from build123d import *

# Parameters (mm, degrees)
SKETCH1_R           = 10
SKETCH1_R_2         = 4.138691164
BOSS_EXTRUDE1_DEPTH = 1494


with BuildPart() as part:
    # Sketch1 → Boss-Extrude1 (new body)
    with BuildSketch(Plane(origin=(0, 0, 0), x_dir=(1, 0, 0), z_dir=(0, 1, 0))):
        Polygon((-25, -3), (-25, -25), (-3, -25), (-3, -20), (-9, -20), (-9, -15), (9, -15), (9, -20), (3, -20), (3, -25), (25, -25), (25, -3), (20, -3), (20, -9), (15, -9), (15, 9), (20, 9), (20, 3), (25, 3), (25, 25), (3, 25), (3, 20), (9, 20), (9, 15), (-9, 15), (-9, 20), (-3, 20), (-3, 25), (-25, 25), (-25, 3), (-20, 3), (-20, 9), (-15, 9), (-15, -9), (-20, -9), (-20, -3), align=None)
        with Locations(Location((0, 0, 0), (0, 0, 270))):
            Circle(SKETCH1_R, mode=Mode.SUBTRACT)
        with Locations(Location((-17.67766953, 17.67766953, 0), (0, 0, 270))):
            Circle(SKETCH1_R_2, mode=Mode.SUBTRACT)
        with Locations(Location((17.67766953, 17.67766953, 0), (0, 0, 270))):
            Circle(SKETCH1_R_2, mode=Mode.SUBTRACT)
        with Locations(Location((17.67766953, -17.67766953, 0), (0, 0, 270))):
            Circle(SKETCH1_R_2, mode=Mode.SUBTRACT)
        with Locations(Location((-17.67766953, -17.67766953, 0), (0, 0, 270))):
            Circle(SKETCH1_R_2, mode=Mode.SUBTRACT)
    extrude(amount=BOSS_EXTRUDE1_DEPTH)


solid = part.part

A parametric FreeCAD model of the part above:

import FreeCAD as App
import Part
import Sketcher

V = App.Vector
Q = App.Units.Quantity


def add_polygon(sketch, points):
    """Adds a closed chain of lines whose ends are joined by coincident constraints."""
    first, n = sketch.GeometryCount, len(points)
    for a, b in zip(points, points[1:] + points[:1]):
        sketch.addGeometry(Part.LineSegment(App.Vector(*a, 0), App.Vector(*b, 0)), False)
    for i in range(n):
        sketch.addConstraint(Sketcher.Constraint("Coincident", first + i, 2, first + (i + 1) % n, 1))

doc = App.newDocument("Part")
body = doc.addObject("PartDesign::Body", "Body")

sketch1 = body.newObject("Sketcher::SketchObject", "Sketch")
sketch1.AttachmentSupport = (doc.getObject("XZ_Plane"), [""])
sketch1.MapMode = "FlatFace"
add_polygon(sketch1, [(-25, 3), (-25, 25), (-3, 25), (-3, 20), (-9, 20), (-9, 15), (9, 15), (9, 20), (3, 20), (3, 25), (25, 25), (25, 3), (20, 3), (20, 9), (15, 9), (15, -9), (20, -9), (20, -3), (25, -3), (25, -25), (3, -25), (3, -20), (9, -20), (9, -15), (-9, -15), (-9, -20), (-3, -20), (-3, -25), (-25, -25), (-25, -3), (-20, -3), (-20, -9), (-15, -9), (-15, 9), (-20, 9), (-20, 3)])
sketch1.addGeometry(Part.Circle(V(-17.7, 17.7, 0), V(0, 0, 1), 4.1), False)
sketch1.addGeometry(Part.Circle(V(17.7, 17.7, 0), V(0, 0, 1), 4.1), False)
sketch1.addGeometry(Part.Circle(V(-17.7, -17.7, 0), V(0, 0, 1), 4.1), False)
sketch1.addGeometry(Part.Circle(V(0, 0, 0), V(0, 0, 1), 10), False)
sketch1.addGeometry(Part.Circle(V(17.7, -17.7, 0), V(0, 0, 1), 4.1), False)
sketch1.addConstraint([
    Sketcher.Constraint("Vertical", 0),
    Sketcher.Constraint("Horizontal", 1),
    Sketcher.Constraint("Vertical", 2),
    Sketcher.Constraint("Horizontal", 3),
    Sketcher.Constraint("Vertical", 4),
    Sketcher.Constraint("Horizontal", 5),
    Sketcher.Constraint("Vertical", 6),
    Sketcher.Constraint("Horizontal", 7),
    Sketcher.Constraint("Vertical", 8),
    Sketcher.Constraint("Horizontal", 9),
    Sketcher.Constraint("Vertical", 10),
    Sketcher.Constraint("Horizontal", 11),
    Sketcher.Constraint("Vertical", 12),
    Sketcher.Constraint("Horizontal", 13),
    Sketcher.Constraint("Vertical", 14),
    Sketcher.Constraint("Horizontal", 15),
    Sketcher.Constraint("Vertical", 16),
    Sketcher.Constraint("Horizontal", 17),
    Sketcher.Constraint("Vertical", 18),
    Sketcher.Constraint("Horizontal", 19),
    Sketcher.Constraint("Vertical", 20),
    Sketcher.Constraint("Horizontal", 21),
    Sketcher.Constraint("Vertical", 22),
    Sketcher.Constraint("Horizontal", 23),
    Sketcher.Constraint("Vertical", 24),
    Sketcher.Constraint("Horizontal", 25),
    Sketcher.Constraint("Vertical", 26),
    Sketcher.Constraint("Horizontal", 27),
    Sketcher.Constraint("Vertical", 28),
    Sketcher.Constraint("Horizontal", 29),
    Sketcher.Constraint("Vertical", 30),
    Sketcher.Constraint("Horizontal", 31),
    Sketcher.Constraint("Vertical", 32),
    Sketcher.Constraint("Horizontal", 33),
    Sketcher.Constraint("Vertical", 34),
    Sketcher.Constraint("Horizontal", 35),
    Sketcher.Constraint("Coincident", 39, 3, -1, 1),
    Sketcher.Constraint("Equal", 36, 37),
    Sketcher.Constraint("Equal", 37, 38),
    Sketcher.Constraint("Equal", 38, 40),
    Sketcher.Constraint("Symmetric", 37, 3, 38, 3, -1, 1),
    Sketcher.Constraint("Symmetric", 36, 3, 40, 3, -1, 1),
    Sketcher.Constraint("Symmetric", 0, 2, 18, 2, -1, 1),
    Sketcher.Constraint("Symmetric", 2, 2, 20, 2, -1, 1),
    Sketcher.Constraint("Symmetric", 4, 2, 22, 2, -1, 1),
    Sketcher.Constraint("Symmetric", 6, 2, 24, 2, -1, 1),
    Sketcher.Constraint("Symmetric", 8, 2, 26, 2, -1, 1),
    Sketcher.Constraint("Symmetric", 10, 2, 28, 2, -1, 1),
    Sketcher.Constraint("Symmetric", 12, 2, 30, 2, -1, 1),
    Sketcher.Constraint("Symmetric", 14, 2, 32, 2, -1, 1),
    Sketcher.Constraint("Symmetric", 16, 2, 34, 2, -1, 1),
    Sketcher.Constraint("Symmetric", 36, 3, 37, 3, -2),
    Sketcher.Constraint("Symmetric", 3, 2, 6, 2, -2),
    Sketcher.Constraint("Symmetric", 1, 2, 8, 2, -2),
    Sketcher.Constraint("Symmetric", 17, 2, 28, 2, -2),
    Sketcher.Constraint("Symmetric", 15, 2, 30, 2, -2),
    Sketcher.Constraint("Equal", 11, 13),
    Sketcher.Constraint("Equal", 27, 0),
    Sketcher.Constraint("Equal", 35, 2),
    Sketcher.Constraint("Equal", 2, 4),
    Sketcher.Constraint("Equal", 25, 12),
    Sketcher.Constraint("Equal", 23, 14),
    Sketcher.Constraint("Diameter", 39, Q("20 mm")),
    Sketcher.Constraint("DistanceX", 1, 1, 1, 2, Q("22 mm")),
    Sketcher.Constraint("DistanceX", 3, 2, 3, 1, Q("6 mm")),
    Sketcher.Constraint("DistanceX", 5, 1, 5, 2, Q("18 mm")),
    Sketcher.Constraint("DistanceX", 11, 2, 11, 1, Q("5 mm")),
    Sketcher.Constraint("Diameter", 36, Q("8.277382 mm")),
    Sketcher.Constraint("DistanceX", 36, 3, -1, 1, Q("17.67767 mm")),
    Sketcher.Constraint("DistanceY", -1, 1, 36, 3, Q("17.67767 mm")),
])
pad1 = body.newObject("PartDesign::Pad", "Pad")
pad1.Profile = sketch1
pad1.Length = 1494
pad1.Reversed = True

doc.recompute()
